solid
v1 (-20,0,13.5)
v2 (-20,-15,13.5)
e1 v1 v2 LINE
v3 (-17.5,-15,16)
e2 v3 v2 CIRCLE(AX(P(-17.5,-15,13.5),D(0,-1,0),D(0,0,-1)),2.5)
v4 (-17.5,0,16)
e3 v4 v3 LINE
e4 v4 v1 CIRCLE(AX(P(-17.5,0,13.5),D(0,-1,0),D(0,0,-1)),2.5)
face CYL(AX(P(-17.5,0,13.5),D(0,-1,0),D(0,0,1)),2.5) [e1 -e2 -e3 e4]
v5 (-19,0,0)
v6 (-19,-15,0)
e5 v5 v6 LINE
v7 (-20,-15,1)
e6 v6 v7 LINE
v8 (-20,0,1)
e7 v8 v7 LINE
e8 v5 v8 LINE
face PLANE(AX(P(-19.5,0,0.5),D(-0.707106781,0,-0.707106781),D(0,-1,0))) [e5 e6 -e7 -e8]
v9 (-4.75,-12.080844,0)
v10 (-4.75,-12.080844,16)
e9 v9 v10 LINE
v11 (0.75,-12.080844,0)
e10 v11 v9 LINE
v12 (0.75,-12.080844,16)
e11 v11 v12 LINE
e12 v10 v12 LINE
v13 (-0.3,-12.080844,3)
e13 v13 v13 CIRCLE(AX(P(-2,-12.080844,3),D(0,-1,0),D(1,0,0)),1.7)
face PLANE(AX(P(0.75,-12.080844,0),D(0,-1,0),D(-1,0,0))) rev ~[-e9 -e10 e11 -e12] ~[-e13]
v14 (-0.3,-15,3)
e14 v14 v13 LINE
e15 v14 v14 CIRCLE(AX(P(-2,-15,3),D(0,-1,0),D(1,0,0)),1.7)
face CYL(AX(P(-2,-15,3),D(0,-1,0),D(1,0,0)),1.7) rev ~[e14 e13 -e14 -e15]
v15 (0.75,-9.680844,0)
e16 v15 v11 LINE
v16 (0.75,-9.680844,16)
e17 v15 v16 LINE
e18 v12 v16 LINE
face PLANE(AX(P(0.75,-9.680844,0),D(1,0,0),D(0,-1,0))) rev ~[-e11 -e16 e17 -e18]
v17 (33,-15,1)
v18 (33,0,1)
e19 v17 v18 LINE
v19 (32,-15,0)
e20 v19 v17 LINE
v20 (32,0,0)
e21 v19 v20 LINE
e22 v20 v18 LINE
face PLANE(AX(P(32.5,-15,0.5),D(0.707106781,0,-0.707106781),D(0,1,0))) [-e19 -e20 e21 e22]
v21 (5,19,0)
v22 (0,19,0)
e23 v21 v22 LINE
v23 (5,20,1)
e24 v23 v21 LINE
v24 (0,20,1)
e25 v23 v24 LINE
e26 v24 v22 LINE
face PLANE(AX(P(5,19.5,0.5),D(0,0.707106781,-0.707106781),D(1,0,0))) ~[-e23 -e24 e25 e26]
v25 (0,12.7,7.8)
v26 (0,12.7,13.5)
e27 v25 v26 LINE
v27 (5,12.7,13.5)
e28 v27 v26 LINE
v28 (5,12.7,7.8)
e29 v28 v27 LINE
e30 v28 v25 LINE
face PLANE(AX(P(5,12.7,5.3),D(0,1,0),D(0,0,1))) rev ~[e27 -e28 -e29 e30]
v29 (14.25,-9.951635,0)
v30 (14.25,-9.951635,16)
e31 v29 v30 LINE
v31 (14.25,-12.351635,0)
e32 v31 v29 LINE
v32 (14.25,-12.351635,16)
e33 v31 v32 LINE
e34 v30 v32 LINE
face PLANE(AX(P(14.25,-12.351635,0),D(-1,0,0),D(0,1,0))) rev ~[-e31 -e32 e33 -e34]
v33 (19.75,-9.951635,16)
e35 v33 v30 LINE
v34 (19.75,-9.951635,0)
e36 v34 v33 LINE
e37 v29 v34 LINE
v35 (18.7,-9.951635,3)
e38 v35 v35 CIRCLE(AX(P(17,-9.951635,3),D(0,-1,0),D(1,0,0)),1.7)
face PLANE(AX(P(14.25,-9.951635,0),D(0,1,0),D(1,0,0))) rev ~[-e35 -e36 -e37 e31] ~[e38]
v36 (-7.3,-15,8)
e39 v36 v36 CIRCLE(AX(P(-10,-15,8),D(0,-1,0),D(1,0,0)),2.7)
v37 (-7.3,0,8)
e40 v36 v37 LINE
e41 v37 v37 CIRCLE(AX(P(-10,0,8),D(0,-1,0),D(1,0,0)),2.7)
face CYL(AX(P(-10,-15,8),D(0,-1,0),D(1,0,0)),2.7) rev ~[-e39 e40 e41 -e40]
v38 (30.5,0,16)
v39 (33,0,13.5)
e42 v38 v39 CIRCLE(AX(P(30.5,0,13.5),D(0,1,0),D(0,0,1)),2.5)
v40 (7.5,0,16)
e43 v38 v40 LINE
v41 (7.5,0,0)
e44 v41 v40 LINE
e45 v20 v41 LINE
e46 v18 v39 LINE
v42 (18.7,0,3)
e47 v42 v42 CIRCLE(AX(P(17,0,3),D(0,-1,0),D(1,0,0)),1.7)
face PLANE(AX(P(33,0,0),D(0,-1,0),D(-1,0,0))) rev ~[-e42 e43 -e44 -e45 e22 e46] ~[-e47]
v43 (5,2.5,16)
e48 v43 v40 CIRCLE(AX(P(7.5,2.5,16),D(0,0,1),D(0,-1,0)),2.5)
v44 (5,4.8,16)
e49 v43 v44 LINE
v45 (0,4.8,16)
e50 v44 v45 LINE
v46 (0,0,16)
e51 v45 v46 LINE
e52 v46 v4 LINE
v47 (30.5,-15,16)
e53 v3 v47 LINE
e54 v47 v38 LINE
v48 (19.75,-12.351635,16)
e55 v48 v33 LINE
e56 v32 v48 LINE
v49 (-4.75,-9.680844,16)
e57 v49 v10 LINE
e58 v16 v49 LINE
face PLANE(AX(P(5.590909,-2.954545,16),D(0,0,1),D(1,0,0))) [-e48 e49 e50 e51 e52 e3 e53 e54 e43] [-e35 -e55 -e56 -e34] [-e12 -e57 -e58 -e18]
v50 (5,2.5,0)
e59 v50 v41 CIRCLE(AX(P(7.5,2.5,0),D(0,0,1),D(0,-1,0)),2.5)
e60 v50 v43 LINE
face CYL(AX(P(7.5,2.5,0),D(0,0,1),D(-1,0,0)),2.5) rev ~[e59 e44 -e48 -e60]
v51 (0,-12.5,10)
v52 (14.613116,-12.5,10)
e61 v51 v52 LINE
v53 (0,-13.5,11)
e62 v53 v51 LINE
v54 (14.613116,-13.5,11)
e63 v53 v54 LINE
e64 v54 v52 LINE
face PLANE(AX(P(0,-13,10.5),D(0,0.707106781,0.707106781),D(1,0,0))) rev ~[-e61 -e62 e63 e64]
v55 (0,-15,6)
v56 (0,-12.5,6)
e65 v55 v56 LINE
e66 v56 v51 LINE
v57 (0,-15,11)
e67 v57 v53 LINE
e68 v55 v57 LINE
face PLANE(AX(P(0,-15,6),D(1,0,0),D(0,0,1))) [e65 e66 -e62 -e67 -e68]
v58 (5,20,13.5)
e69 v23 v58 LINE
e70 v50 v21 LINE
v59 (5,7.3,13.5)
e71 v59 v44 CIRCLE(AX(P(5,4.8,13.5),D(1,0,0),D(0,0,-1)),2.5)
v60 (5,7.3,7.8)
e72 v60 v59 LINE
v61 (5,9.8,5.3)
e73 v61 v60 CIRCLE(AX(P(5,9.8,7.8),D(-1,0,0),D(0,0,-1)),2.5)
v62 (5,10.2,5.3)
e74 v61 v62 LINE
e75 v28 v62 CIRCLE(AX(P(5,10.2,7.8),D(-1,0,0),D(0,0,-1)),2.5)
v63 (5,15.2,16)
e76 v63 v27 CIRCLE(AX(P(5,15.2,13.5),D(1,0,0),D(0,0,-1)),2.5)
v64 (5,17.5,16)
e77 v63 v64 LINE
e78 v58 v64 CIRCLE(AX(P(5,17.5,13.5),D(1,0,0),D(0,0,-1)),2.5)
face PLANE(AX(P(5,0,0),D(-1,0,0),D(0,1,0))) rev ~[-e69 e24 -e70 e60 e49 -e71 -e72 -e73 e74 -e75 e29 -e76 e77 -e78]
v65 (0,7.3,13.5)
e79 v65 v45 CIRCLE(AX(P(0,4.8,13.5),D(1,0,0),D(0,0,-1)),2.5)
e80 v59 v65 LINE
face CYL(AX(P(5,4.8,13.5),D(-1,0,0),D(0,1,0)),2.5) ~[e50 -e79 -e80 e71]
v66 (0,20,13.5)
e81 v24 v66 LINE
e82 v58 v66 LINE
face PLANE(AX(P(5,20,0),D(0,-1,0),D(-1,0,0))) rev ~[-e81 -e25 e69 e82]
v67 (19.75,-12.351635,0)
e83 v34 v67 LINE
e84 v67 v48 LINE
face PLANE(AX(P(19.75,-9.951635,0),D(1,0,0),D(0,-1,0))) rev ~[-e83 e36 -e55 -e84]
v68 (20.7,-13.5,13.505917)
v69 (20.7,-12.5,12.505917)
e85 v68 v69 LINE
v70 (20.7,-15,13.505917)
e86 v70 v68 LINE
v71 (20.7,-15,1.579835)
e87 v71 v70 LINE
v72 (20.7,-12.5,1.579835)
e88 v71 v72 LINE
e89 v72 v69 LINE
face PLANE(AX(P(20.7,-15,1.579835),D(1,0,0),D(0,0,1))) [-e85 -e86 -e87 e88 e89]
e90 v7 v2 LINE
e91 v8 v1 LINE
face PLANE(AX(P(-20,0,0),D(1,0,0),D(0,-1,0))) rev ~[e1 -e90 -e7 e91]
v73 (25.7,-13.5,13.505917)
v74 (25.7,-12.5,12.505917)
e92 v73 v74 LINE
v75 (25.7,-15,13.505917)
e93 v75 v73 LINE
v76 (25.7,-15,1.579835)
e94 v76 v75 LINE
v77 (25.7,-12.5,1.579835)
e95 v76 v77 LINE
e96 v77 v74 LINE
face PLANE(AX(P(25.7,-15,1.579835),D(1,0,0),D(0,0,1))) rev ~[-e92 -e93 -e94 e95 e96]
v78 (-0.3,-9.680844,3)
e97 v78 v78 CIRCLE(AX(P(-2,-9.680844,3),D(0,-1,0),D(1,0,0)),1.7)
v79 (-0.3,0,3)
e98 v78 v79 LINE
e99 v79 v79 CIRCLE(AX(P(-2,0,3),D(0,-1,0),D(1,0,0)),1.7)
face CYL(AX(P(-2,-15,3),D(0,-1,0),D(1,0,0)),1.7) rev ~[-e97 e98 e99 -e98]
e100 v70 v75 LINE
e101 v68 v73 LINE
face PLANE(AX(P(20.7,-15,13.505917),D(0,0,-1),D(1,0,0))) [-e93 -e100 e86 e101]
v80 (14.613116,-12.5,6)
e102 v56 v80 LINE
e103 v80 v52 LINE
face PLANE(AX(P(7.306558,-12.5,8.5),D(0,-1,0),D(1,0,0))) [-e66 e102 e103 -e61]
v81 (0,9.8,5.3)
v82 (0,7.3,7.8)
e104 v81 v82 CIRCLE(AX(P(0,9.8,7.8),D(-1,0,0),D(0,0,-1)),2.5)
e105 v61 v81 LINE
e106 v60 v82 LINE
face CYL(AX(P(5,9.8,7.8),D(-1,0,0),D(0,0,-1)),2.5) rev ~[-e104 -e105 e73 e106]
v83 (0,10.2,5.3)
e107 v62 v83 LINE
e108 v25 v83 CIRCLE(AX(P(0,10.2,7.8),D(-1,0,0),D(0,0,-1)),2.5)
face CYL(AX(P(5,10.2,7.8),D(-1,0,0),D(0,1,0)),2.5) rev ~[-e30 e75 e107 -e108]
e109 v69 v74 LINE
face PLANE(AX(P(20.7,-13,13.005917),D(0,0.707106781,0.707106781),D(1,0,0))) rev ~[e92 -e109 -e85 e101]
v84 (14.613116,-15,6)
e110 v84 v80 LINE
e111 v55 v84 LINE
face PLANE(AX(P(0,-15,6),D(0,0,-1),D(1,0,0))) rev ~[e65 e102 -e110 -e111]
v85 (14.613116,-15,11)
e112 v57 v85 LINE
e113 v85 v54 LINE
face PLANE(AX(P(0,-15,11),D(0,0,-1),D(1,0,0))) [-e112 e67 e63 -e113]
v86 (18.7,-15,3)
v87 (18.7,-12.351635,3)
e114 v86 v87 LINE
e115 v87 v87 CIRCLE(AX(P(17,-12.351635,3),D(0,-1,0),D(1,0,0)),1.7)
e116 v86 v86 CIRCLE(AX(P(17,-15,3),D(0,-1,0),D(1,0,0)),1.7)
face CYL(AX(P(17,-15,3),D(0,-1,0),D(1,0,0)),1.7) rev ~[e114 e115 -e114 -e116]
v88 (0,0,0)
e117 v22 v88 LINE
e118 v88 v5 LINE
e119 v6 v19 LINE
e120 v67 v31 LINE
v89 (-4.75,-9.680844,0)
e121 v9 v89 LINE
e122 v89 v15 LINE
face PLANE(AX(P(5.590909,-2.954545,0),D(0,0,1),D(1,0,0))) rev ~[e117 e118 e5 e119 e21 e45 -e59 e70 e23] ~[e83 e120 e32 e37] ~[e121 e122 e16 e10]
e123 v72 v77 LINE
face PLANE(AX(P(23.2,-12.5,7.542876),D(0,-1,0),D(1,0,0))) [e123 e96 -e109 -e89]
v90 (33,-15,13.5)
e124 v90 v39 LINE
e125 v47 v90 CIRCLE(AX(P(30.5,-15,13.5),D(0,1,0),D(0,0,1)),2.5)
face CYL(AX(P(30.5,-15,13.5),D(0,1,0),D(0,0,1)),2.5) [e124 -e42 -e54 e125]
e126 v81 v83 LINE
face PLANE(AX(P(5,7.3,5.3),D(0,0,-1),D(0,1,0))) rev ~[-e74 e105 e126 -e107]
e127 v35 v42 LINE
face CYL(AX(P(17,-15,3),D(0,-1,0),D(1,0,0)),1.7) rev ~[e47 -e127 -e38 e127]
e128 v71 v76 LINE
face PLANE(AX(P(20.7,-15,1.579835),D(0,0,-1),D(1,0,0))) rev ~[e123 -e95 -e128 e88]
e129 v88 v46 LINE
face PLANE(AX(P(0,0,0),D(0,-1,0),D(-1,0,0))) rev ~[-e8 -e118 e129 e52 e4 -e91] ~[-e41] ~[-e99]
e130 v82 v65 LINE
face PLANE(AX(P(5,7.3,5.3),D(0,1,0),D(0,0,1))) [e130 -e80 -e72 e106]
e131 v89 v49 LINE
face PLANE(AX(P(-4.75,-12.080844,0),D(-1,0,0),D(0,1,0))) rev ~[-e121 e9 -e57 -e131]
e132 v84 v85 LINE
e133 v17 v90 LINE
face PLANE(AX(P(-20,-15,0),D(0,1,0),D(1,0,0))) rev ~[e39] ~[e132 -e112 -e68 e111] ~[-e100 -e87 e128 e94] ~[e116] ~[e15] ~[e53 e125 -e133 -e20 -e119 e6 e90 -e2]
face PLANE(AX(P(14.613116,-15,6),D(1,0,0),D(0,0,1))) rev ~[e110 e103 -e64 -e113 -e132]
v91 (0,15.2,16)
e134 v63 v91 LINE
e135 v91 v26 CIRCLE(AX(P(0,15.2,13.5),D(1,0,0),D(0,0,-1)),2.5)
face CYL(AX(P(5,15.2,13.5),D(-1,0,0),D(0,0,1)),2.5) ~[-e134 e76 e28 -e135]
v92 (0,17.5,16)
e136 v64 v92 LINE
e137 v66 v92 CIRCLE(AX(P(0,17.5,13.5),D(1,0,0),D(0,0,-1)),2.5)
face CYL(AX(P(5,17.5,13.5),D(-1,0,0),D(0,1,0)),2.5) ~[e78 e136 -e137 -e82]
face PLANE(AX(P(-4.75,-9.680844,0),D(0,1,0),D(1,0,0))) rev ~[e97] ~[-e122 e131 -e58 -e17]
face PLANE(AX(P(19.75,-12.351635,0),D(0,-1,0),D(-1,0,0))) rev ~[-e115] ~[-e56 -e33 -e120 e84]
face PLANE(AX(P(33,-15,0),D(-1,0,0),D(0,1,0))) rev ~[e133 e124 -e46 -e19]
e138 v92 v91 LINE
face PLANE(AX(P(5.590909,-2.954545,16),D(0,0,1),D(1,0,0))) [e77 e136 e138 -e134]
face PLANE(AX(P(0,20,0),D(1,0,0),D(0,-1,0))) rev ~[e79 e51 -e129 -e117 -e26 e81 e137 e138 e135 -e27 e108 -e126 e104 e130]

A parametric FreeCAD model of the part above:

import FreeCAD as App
import Part
import Sketcher


def edges_at(feature, points):
    """Names of the edges that pass closest to the given points."""
    edges = feature.Shape.Edges
    near = lambda p: min(range(len(edges)), key=lambda i: edges[i].distToShape(Part.Vertex(*p))[0])
    return sorted({f"Edge{near(p) + 1}" for p in points})

doc = App.newDocument("Part")
body = doc.addObject("PartDesign::Body", "Body")

sketch1 = body.newObject("Sketcher::SketchObject", "Sketch")
sketch1.AttachmentSupport = (doc.getObject("XY_Plane"), [""])
sketch1.MapMode = "FlatFace"
sketch1.addGeometry(Part.LineSegment(App.Vector(5, 20, 0), App.Vector(0, 20, 0)), False)
sketch1.addGeometry(Part.LineSegment(App.Vector(0, 20, 0), App.Vector(0, 0, 0)), False)
sketch1.addGeometry(Part.LineSegment(App.Vector(0, 0, 0), App.Vector(-20, 0, 0)), False)
sketch1.addGeometry(Part.LineSegment(App.Vector(-20, 0, 0), App.Vector(-20, -15, 0)), False)
sketch1.addGeometry(Part.LineSegment(App.Vector(-20, -15, 0), App.Vector(33, -15, 0)), False)
sketch1.addGeometry(Part.LineSegment(App.Vector(33, -15, 0), App.Vector(33, 0, 0)), False)
sketch1.addGeometry(Part.LineSegment(App.Vector(33, 0, 0), App.Vector(5, 0, 0)), False)
sketch1.addGeometry(Part.LineSegment(App.Vector(5, 0, 0), App.Vector(5, 20, 0)), False)
sketch1.addConstraint(Sketcher.Constraint("Coincident", 0, 2, 1, 1))
sketch1.addConstraint(Sketcher.Constraint("Coincident", 1, 2, 2, 1))
sketch1.addConstraint(Sketcher.Constraint("Coincident", 2, 2, 3, 1))
sketch1.addConstraint(Sketcher.Constraint("Coincident", 3, 2, 4, 1))
sketch1.addConstraint(Sketcher.Constraint("Coincident", 4, 2, 5, 1))
sketch1.addConstraint(Sketcher.Constraint("Coincident", 5, 2, 6, 1))
sketch1.addConstraint(Sketcher.Constraint("Coincident", 6, 2, 7, 1))
sketch1.addConstraint(Sketcher.Constraint("Coincident", 7, 2, 0, 1))
sketch1.addConstraint(Sketcher.Constraint("Horizontal", 0))
sketch1.addConstraint(Sketcher.Constraint("Vertical", 1))
sketch1.addConstraint(Sketcher.Constraint("Horizontal", 2))
sketch1.addConstraint(Sketcher.Constraint("Vertical", 3))
sketch1.addConstraint(Sketcher.Constraint("Horizontal", 4))
sketch1.addConstraint(Sketcher.Constraint("Vertical", 5))
sketch1.addConstraint(Sketcher.Constraint("Horizontal", 6))
sketch1.addConstraint(Sketcher.Constraint("Vertical", 7))
sketch1.addConstraint(Sketcher.Constraint("Coincident", 1, 2, -1, 1))
sketch1.addConstraint(Sketcher.Constraint("PointOnObject", 5, 2, -1))
sketch1.addConstraint(Sketcher.Constraint("Equal", 2, 1))
sketch1.addConstraint(Sketcher.Constraint("DistanceX", 0, 2, 0, 1, 5.0))
sketch1.addConstraint(Sketcher.Constraint("DistanceX", 2, 2, 2, 1, 20.0))
sketch1.addConstraint(Sketcher.Constraint("DistanceX", 4, 1, 4, 2, 53.0))
sketch1.addConstraint(Sketcher.Constraint("DistanceY", 3, 2, 3, 1, 15.0))
pad1 = body.newObject("PartDesign::Pad", "Pad")
pad1.Profile = sketch1
pad1.Length = 16

sketch2 = body.newObject("Sketcher::SketchObject", "Sketch001")
sketch2.AttachmentSupport = (doc.getObject("XZ_Plane"), [""])
sketch2.MapMode = "FlatFace"
sketch2.AttachmentOffset = App.Placement(App.Vector(0, 0, 15), App.Rotation())
sketch2.addGeometry(Part.Circle(App.Vector(17, 3, 0), App.Vector(0, 0, 1), 1.7), False)
sketch2.addGeometry(Part.Circle(App.Vector(-2, 3, 0), App.Vector(0, 0, 1), 1.7), False)
sketch2.addConstraint(Sketcher.Constraint("Equal", 0, 1))
sketch2.addConstraint(Sketcher.Constraint("Horizontal", 0, 3, 1, 3))
sketch2.addConstraint(Sketcher.Constraint("Diameter", 0, 3.4))
sketch2.addConstraint(Sketcher.Constraint("DistanceX", -1, 1, 0, 3, 17.0))
sketch2.addConstraint(Sketcher.Constraint("DistanceY", -1, 1, 0, 3, 3.0))
sketch2.addConstraint(Sketcher.Constraint("DistanceX", 1, 3, -1, 1, 2.0))
pocket1 = body.newObject("PartDesign::Pocket", "Pocket")
pocket1.Profile = sketch2
pocket1.Length = 25

sketch3 = body.newObject("Sketcher::SketchObject", "Sketch002")
sketch3.AttachmentSupport = (doc.getObject("XY_Plane"), [""])
sketch3.MapMode = "FlatFace"
sketch3.addGeometry(Part.LineSegment(App.Vector(19.75, -12.351635, 0), App.Vector(14.25, -12.351635, 0)), False)
sketch3.addGeometry(Part.LineSegment(App.Vector(14.25, -12.351635, 0), App.Vector(14.25, -9.951635, 0)), False)
sketch3.addGeometry(Part.LineSegment(App.Vector(14.25, -9.951635, 0), App.Vector(19.75, -9.951635, 0)), False)
sketch3.addGeometry(Part.LineSegment(App.Vector(19.75, -9.951635, 0), App.Vector(19.75, -12.351635, 0)), False)
sketch3.addGeometry(Part.LineSegment(App.Vector(0.75, -12.080844, 0), App.Vector(-4.75, -12.080844, 0)), False)
sketch3.addGeometry(Part.LineSegment(App.Vector(-4.75, -12.080844, 0), App.Vector(-4.75, -9.680844, 0)), False)
sketch3.addGeometry(Part.LineSegment(App.Vector(-4.75, -9.680844, 0), App.Vector(0.75, -9.680844, 0)), False)
sketch3.addGeometry(Part.LineSegment(App.Vector(0.75, -9.680844, 0), App.Vector(0.75, -12.080844, 0)), False)
sketch3.addConstraint(Sketcher.Constraint("Coincident", 0, 2, 1, 1))
sketch3.addConstraint(Sketcher.Constraint("Coincident", 1, 2, 2, 1))
sketch3.addConstraint(Sketcher.Constraint("Coincident", 2, 2, 3, 1))
sketch3.addConstraint(Sketcher.Constraint("Coincident", 3, 2, 0, 1))
sketch3.addConstraint(Sketcher.Constraint("Coincident", 4, 2, 5, 1))
sketch3.addConstraint(Sketcher.Constraint("Coincident", 5, 2, 6, 1))
sketch3.addConstraint(Sketcher.Constraint("Coincident", 6, 2, 7, 1))
sketch3.addConstraint(Sketcher.Constraint("Coincident", 7, 2, 4, 1))
sketch3.addConstraint(Sketcher.Constraint("Horizontal", 0))
sketch3.addConstraint(Sketcher.Constraint("Vertical", 1))
sketch3.addConstraint(Sketcher.Constraint("Horizontal", 2))
sketch3.addConstraint(Sketcher.Constraint("Vertical", 3))
sketch3.addConstraint(Sketcher.Constraint("Horizontal", 4))
sketch3.addConstraint(Sketcher.Constraint("Vertical", 5))
sketch3.addConstraint(Sketcher.Constraint("Horizontal", 6))
sketch3.addConstraint(Sketcher.Constraint("Vertical", 7))
sketch3.addConstraint(Sketcher.Constraint("Equal", 2, 4))
sketch3.addConstraint(Sketcher.Constraint("Equal", 3, 5))
sketch3.addConstraint(Sketcher.Constraint("DistanceX", 0, 2, 0, 1, 5.5))
sketch3.addConstraint(Sketcher.Constraint("DistanceY", 1, 1, 1, 2, 2.4))
sketch3.addConstraint(Sketcher.Constraint("DistanceX", 4, 2, 0, 2, 19.0))
sketch3.addConstraint(Sketcher.Constraint("DistanceX", -1, 1, 0, 2, 14.25))
sketch3.addConstraint(Sketcher.Constraint("DistanceY", 0, 2, 4, 2, 0.270791))
sketch3.addConstraint(Sketcher.Constraint("DistanceY", 0, 2, -1, 1, 12.351635))
pocket2 = body.newObject("PartDesign::Pocket", "Pocket001")
pocket2.Profile = sketch3
pocket2.Length = 25
pocket2.Reversed = True

sketch4 = body.newObject("Sketcher::SketchObject", "Sketch003")
sketch4.AttachmentSupport = (doc.getObject("XZ_Plane"), [""])
sketch4.MapMode = "FlatFace"
sketch4.AttachmentOffset = App.Placement(App.Vector(0, 0, 15), App.Rotation())
sketch4.addGeometry(Part.LineSegment(App.Vector(0, 11, 0), App.Vector(0, 6, 0)), False)
sketch4.addGeometry(Part.LineSegment(App.Vector(0, 6, 0), App.Vector(14.613116, 6, 0)), False)
sketch4.addGeometry(Part.LineSegment(App.Vector(14.613116, 6, 0), App.Vector(14.613116, 11, 0)), False)
sketch4.addGeometry(Part.LineSegment(App.Vector(14.613116, 11, 0), App.Vector(0, 11, 0)), False)
sketch4.addGeometry(Part.LineSegment(App.Vector(20.7, 13.505917, 0), App.Vector(20.7, 1.579835, 0)), False)
sketch4.addGeometry(Part.LineSegment(App.Vector(20.7, 1.579835, 0), App.Vector(25.7, 1.579835, 0)), False)
sketch4.addGeometry(Part.LineSegment(App.Vector(25.7, 1.579835, 0), App.Vector(25.7, 13.505917, 0)), False)
sketch4.addGeometry(Part.LineSegment(App.Vector(25.7, 13.505917, 0), App.Vector(20.7, 13.505917, 0)), False)
sketch4.addConstraint(Sketcher.Constraint("Coincident", 0, 2, 1, 1))
sketch4.addConstraint(Sketcher.Constraint("Coincident", 1, 2, 2, 1))
sketch4.addConstraint(Sketcher.Constraint("Coincident", 2, 2, 3, 1))
sketch4.addConstraint(Sketcher.Constraint("Coincident", 3, 2, 0, 1))
sketch4.addConstraint(Sketcher.Constraint("Coincident", 4, 2, 5, 1))
sketch4.addConstraint(Sketcher.Constraint("Coincident", 5, 2, 6, 1))
sketch4.addConstraint(Sketcher.Constraint("Coincident", 6, 2, 7, 1))
sketch4.addConstraint(Sketcher.Constraint("Coincident", 7, 2, 4, 1))
sketch4.addConstraint(Sketcher.Constraint("Vertical", 0))
sketch4.addConstraint(Sketcher.Constraint("Horizontal", 1))
sketch4.addConstraint(Sketcher.Constraint("Vertical", 2))
sketch4.addConstraint(Sketcher.Constraint("Horizontal", 3))
sketch4.addConstraint(Sketcher.Constraint("Vertical", 4))
sketch4.addConstraint(Sketcher.Constraint("Horizontal", 5))
sketch4.addConstraint(Sketcher.Constraint("Vertical", 6))
sketch4.addConstraint(Sketcher.Constraint("Horizontal", 7))
sketch4.addConstraint(Sketcher.Constraint("PointOnObject", 0, 2, -2))
sketch4.addConstraint(Sketcher.Constraint("Equal", 7, 0))
sketch4.addConstraint(Sketcher.Constraint("DistanceX", 5, 1, 5, 2, 5.0))
sketch4.addConstraint(Sketcher.Constraint("DistanceY", -1, 1, 0, 2, 6.0))
sketch4.addConstraint(Sketcher.Constraint("DistanceX", -1, 1, 4, 2, 20.7))
sketch4.addConstraint(Sketcher.Constraint("DistanceX", 1, 1, 1, 2, 14.613116))
sketch4.addConstraint(Sketcher.Constraint("DistanceY", 4, 2, 4, 1, 11.926082))
sketch4.addConstraint(Sketcher.Constraint("DistanceY", -1, 1, 4, 2, 1.579835))
pocket3 = body.newObject("PartDesign::Pocket", "Pocket002")
pocket3.Profile = sketch4
pocket3.Length = 2.5

sketch5 = body.newObject("Sketcher::SketchObject", "Sketch004")
sketch5.AttachmentSupport = (doc.getObject("YZ_Plane"), [""])
sketch5.MapMode = "FlatFace"
sketch5.AttachmentOffset = App.Placement(App.Vector(0, 0, 5), App.Rotation())
sketch5.addGeometry(Part.LineSegment(App.Vector(7.3, 16, 0), App.Vector(7.3, 5.3, 0)), False)
sketch5.addGeometry(Part.LineSegment(App.Vector(7.3, 5.3, 0), App.Vector(12.7, 5.3, 0)), False)
sketch5.addGeometry(Part.LineSegment(App.Vector(12.7, 5.3, 0), App.Vector(12.7, 16, 0)), False)
sketch5.addGeometry(Part.LineSegment(App.Vector(12.7, 16, 0), App.Vector(7.3, 16, 0)), False)
sketch5.addConstraint(Sketcher.Constraint("Coincident", 0, 2, 1, 1))
sketch5.addConstraint(Sketcher.Constraint("Coincident", 1, 2, 2, 1))
sketch5.addConstraint(Sketcher.Constraint("Coincident", 2, 2, 3, 1))
sketch5.addConstraint(Sketcher.Constraint("Coincident", 3, 2, 0, 1))
sketch5.addConstraint(Sketcher.Constraint("Vertical", 0))
sketch5.addConstraint(Sketcher.Constraint("Horizontal", 1))
sketch5.addConstraint(Sketcher.Constraint("Vertical", 2))
sketch5.addConstraint(Sketcher.Constraint("Horizontal", 3))
sketch5.addConstraint(Sketcher.Constraint("DistanceX", 1, 1, 1, 2, 5.4))
sketch5.addConstraint(Sketcher.Constraint("DistanceY", 0, 2, 0, 1, 10.7))
sketch5.addConstraint(Sketcher.Constraint("DistanceY", -1, 1, 2, 2, 16.0))
sketch5.addConstraint(Sketcher.Constraint("DistanceX", -1, 1, 0, 2, 7.3))
pocket4 = body.newObject("PartDesign::Pocket", "Pocket003")
pocket4.Profile = sketch5
pocket4.Length = 25
doc.recompute()

fillet = body.newObject("PartDesign::Fillet", "Fillet")
fillet.Base = (pocket4, edges_at(pocket4, [
    (2.5, 7.3, 5.3),
    (2.5, 12.7, 5.3),
    (2.5, 20, 16),
    (-20, -7.5, 16),
    (33, -7.5, 16),
    (2.5, 12.7, 16),
    (2.5, 7.3, 16),
    (5, 0, 8),
]))
fillet.Radius = 2.5
doc.recompute()

chamfer = body.newObject("PartDesign::Chamfer", "Chamfer")
chamfer.Base = (fillet, edges_at(fillet, [
    (7.307, -12.5, 11),
    (23.2, -12.5, 13.506),
    (33, -7.5, 0),
    (-20, -7.5, 0),
    (2.5, 20, 0),
]))
chamfer.Size = 1

sketch6 = body.newObject("Sketcher::SketchObject", "Sketch005")
sketch6.AttachmentSupport = (doc.getObject("XZ_Plane"), [""])
sketch6.MapMode = "FlatFace"
sketch6.AttachmentOffset = App.Placement(App.Vector(0, 0, 15), App.Rotation())
sketch6.addGeometry(Part.Circle(App.Vector(-10, 8, 0), App.Vector(0, 0, 1), 2.7), False)
sketch6.addConstraint(Sketcher.Constraint("Diameter", 0, 5.4))
sketch6.addConstraint(Sketcher.Constraint("DistanceX", 0, 3, -1, 1, 10.0))
sketch6.addConstraint(Sketcher.Constraint("DistanceY", -1, 1, 0, 3, 8.0))
pocket5 = body.newObject("PartDesign::Pocket", "Pocket004")
pocket5.Profile = sketch6
pocket5.Length = 25

doc.recompute()
